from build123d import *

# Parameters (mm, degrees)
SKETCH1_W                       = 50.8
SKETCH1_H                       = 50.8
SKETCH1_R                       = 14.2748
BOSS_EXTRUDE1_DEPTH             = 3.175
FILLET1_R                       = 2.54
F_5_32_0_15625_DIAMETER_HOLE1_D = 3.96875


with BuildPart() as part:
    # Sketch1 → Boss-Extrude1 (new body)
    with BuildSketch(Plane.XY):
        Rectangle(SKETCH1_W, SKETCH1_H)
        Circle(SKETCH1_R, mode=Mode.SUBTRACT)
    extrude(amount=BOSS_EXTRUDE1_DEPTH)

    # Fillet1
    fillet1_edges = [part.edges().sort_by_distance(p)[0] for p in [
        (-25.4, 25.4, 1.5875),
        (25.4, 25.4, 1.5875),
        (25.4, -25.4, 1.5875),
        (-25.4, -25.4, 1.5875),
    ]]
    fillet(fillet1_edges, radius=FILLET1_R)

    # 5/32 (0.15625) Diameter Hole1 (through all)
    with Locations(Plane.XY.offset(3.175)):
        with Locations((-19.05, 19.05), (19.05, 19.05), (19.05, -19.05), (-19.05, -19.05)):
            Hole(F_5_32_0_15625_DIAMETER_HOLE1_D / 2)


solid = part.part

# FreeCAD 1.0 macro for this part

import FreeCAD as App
import Part
import Sketcher
Q = App.Units.Quantity


def edges_at(feature, points):
    """Names of the edges that pass closest to the given points."""
    edges = feature.Shape.Edges
    near = lambda p: min(range(len(edges)), key=lambda i: edges[i].distToShape(Part.Vertex(*p))[0])
    return sorted({f"Edge{near(p) + 1}" for p in points})

doc = App.newDocument("Part")
params = doc.addObject("Spreadsheet::Sheet", "Params")
for row, (alias, value) in enumerate([
    ("sketch1_width", "2 in"),
    ("sketch1_diameter", "1.124 in"),
    ("pad1_length", "0.125 in"),
    ("fillet_radius", "0.1 in"),
    ("sketch2_diameter", "0.15625 in"),
    ("hole_diameter", "0.15625 in"),
], start=1):
    params.set(f"A{row}", alias)
    params.set(f"B{row}", "=" + value)
    params.setAlias(f"B{row}", alias)

body = doc.addObject("PartDesign::Body", "Body")

# Sketch on XY plane
sketch1 = body.newObject("Sketcher::SketchObject", "Sketch")
sketch1.AttachmentSupport = (doc.getObject("XY_Plane"), [""])
sketch1.MapMode = "FlatFace"
sketch1.addGeometry([
    Part.LineSegment(App.Vector(-25, 25, 0), App.Vector(-25, -25, 0)),  # 0
    Part.LineSegment(App.Vector(-25, -25, 0), App.Vector(25, -25, 0)),  # 1
    Part.LineSegment(App.Vector(25, -25, 0), App.Vector(25, 25, 0)),  # 2
    Part.LineSegment(App.Vector(25, 25, 0), App.Vector(-25, 25, 0)),  # 3
    Part.Circle(App.Vector(0, 0, 0), App.Vector(0, 0, 1), 14),  # 4
], False)
sketch1.addConstraint([
    Sketcher.Constraint("Coincident", 0, 2, 1, 1),
    Sketcher.Constraint("Coincident", 1, 2, 2, 1),
    Sketcher.Constraint("Coincident", 2, 2, 3, 1),
    Sketcher.Constraint("Coincident", 3, 2, 0, 1),
    Sketcher.Constraint("Vertical", 0),
    Sketcher.Constraint("Horizontal", 1),
    Sketcher.Constraint("Vertical", 2),
    Sketcher.Constraint("Horizontal", 3),
    Sketcher.Constraint("Coincident", 4, 3, -1, 1),
    Sketcher.Constraint("Symmetric", 0, 2, 2, 2, -1, 1),
    Sketcher.Constraint("Equal", 3, 0),
    Sketcher.Constraint("DistanceX", 1, 1, 1, 2, Q("2 in")),
    Sketcher.Constraint("Diameter", 4, Q("1.124 in")),
])
sketch1.setExpression("Constraints[11]", "Params.sketch1_width")
sketch1.setExpression("Constraints[12]", "Params.sketch1_diameter")
pad1 = body.newObject("PartDesign::Pad", "Pad")
pad1.Profile = sketch1
pad1.setExpression("Length", "Params.pad1_length")
doc.recompute()

fillet = body.newObject("PartDesign::Fillet", "Fillet")
fillet.Base = (pad1, edges_at(pad1, [
    (-25.4, 25.4, 1.587),
    (25.4, 25.4, 1.587),
    (25.4, -25.4, 1.587),
    (-25.4, -25.4, 1.587),
]))
fillet.setExpression("Radius", "Params.fillet_radius")

# Sketch on XY plane
sketch2 = body.newObject("Sketcher::SketchObject", "Sketch001")
sketch2.AttachmentSupport = (doc.getObject("XY_Plane"), [""])
sketch2.MapMode = "FlatFace"
sketch2.AttachmentOffset = App.Placement(App.Vector(0, 0, 0.125 * 25.4), App.Rotation())
sketch2.addGeometry([
    Part.Circle(App.Vector(-19.1, 19.1, 0), App.Vector(0, 0, 1), 2),
    Part.Circle(App.Vector(19.1, 19.1, 0), App.Vector(0, 0, 1), 2),
    Part.Circle(App.Vector(19.1, -19.1, 0), App.Vector(0, 0, 1), 2),
    Part.Circle(App.Vector(-19.1, -19.1, 0), App.Vector(0, 0, 1), 2),
], False)
sketch2.addConstraint([
    Sketcher.Constraint("Equal", 0, 1),
    Sketcher.Constraint("Equal", 1, 2),
    Sketcher.Constraint("Equal", 2, 3),
    Sketcher.Constraint("Symmetric", 0, 3, 2, 3, -1, 1),
    Sketcher.Constraint("Symmetric", 1, 3, 3, 3, -1, 1),
    Sketcher.Constraint("Symmetric", 0, 3, 1, 3, -2),
    Sketcher.Constraint("Diameter", 0, Q("0.15625 in")),
    Sketcher.Constraint("DistanceX", 0, 3, 1, 3, Q("1.5 in")),
    Sketcher.Constraint("DistanceY", 2, 3, 1, 3, Q("1.5 in")),
])
sketch2.setExpression("Constraints[6]", "Params.sketch2_diameter")
doc.recompute()
hole = body.newObject("PartDesign::Hole", "Hole")
hole.Profile = sketch2
hole.ThreadType = "None"
hole.setExpression("Diameter", "Params.hole_diameter")
hole.DepthType = "ThroughAll"

doc.recompute()
